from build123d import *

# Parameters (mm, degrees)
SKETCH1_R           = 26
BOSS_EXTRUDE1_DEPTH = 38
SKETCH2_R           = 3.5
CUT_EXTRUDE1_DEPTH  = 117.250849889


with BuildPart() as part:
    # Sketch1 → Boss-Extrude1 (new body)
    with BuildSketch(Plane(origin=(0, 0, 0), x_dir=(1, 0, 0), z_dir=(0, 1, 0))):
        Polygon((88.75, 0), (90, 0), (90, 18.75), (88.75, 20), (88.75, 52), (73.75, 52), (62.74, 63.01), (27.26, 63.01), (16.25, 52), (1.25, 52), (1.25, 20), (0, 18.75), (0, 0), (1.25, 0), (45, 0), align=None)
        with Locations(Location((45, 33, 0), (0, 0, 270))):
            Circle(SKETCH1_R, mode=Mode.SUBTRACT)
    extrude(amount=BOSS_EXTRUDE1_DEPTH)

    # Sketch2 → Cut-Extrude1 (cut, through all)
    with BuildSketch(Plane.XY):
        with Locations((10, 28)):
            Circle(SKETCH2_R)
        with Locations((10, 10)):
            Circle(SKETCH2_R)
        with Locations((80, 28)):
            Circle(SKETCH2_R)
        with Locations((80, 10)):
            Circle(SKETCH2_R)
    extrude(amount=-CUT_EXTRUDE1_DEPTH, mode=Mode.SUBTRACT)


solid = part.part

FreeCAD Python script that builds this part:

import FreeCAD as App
import Part
import Sketcher
Q = App.Units.Quantity


def add_polygon(sketch, points):
    """Adds a closed chain of lines whose ends are joined by coincident constraints."""
    first, n = sketch.GeometryCount, len(points)
    for a, b in zip(points, points[1:] + points[:1]):
        sketch.addGeometry(Part.LineSegment(App.Vector(*a, 0), App.Vector(*b, 0)), False)
    for i in range(n):
        sketch.addConstraint(Sketcher.Constraint("Coincident", first + i, 2, first + (i + 1) % n, 1))

doc = App.newDocument("Part")
body = doc.addObject("PartDesign::Body", "Body")

# Sketch on XZ plane
sketch1 = doc.addObject("Sketcher::SketchObject", "Sketch")
body.addObject(sketch1)
sketch1.AttachmentSupport = (doc.XZ_Plane, [""])
sketch1.MapMode = "FlatFace"
add_polygon(sketch1, [(90, 0), (90, -18.8), (88.8, -20), (88.8, -52), (73.8, -52), (62.7, -63), (27.3, -63), (16.2, -52), (1.2, -52), (1.2, -20), (0, -18.8), (0, 0)])  # lines 0-11
sketch1.addGeometry(Part.Circle(App.Vector(45, -33, 0), App.Vector(0, 0, 1), 26), False)  # 12
sketch1.addConstraint(Sketcher.Constraint("Vertical", 0))
sketch1.addConstraint(Sketcher.Constraint("Vertical", 2))
sketch1.addConstraint(Sketcher.Constraint("Horizontal", 3))
sketch1.addConstraint(Sketcher.Constraint("Horizontal", 5))
sketch1.addConstraint(Sketcher.Constraint("Horizontal", 7))
sketch1.addConstraint(Sketcher.Constraint("Vertical", 8))
sketch1.addConstraint(Sketcher.Constraint("Vertical", 10))
sketch1.addConstraint(Sketcher.Constraint("Horizontal", 11))
sketch1.addConstraint(Sketcher.Constraint("Coincident", 10, 2, -1, 1))
sketch1.addConstraint(Sketcher.Constraint("Parallel", 1, 4))
sketch1.addConstraint(Sketcher.Constraint("Perpendicular", 4, 6))
sketch1.addConstraint(Sketcher.Constraint("Parallel", 6, 9))
sketch1.addConstraint(Sketcher.Constraint("Horizontal", 3, 2, 6, 2))
sketch1.addConstraint(Sketcher.Constraint("Horizontal", 1, 2, 8, 2))
sketch1.addConstraint(Sketcher.Constraint("Horizontal", 0, 2, 9, 2))
sketch1.addConstraint(Sketcher.Constraint("Equal", 3, 7))
sketch1.addConstraint(Sketcher.Constraint("Equal", 4, 6))
sketch1.addConstraint(Sketcher.Constraint("Diameter", 12, Q("52 mm")))
sketch1.addConstraint(Sketcher.Constraint("DistanceX", 3, 2, 3, 1, Q("15 mm")))
sketch1.addConstraint(Sketcher.Constraint("DistanceX", 11, 1, 11, 2, Q("90 mm")))
sketch1.addConstraint(Sketcher.Constraint("DistanceY", 2, 2, 2, 1, Q("32 mm")))
sketch1.addConstraint(Sketcher.Constraint("DistanceX", -1, 1, 12, 3, Q("45 mm")))
sketch1.addConstraint(Sketcher.Constraint("DistanceY", 12, 3, -1, 1, Q("33 mm")))
sketch1.addConstraint(Sketcher.Constraint("DistanceY", 1, 2, -1, 1, Q("20 mm")))
sketch1.addConstraint(Sketcher.Constraint("DistanceX", 5, 2, 5, 1, Q("35.48 mm")))
sketch1.addConstraint(Sketcher.Constraint("DistanceY", 0, 2, 0, 1, Q("18.75 mm")))
pad1 = doc.addObject("PartDesign::Pad", "Pad")
body.addObject(pad1)
pad1.Profile = sketch1
pad1.Length = 38
pad1.Reversed = True

# Sketch on XY plane
sketch2 = doc.addObject("Sketcher::SketchObject", "Sketch001")
body.addObject(sketch2)
sketch2.AttachmentSupport = (doc.XY_Plane, [""])
sketch2.MapMode = "FlatFace"
sketch2.addGeometry(Part.Circle(App.Vector(10, 28, 0), App.Vector(0, 0, 1), 3.5), False)
sketch2.addGeometry(Part.Circle(App.Vector(10, 10, 0), App.Vector(0, 0, 1), 3.5), False)
sketch2.addGeometry(Part.Circle(App.Vector(80, 28, 0), App.Vector(0, 0, 1), 3.5), False)
sketch2.addGeometry(Part.Circle(App.Vector(80, 10, 0), App.Vector(0, 0, 1), 3.5), False)
sketch2.addConstraint(Sketcher.Constraint("Equal", 0, 1))
sketch2.addConstraint(Sketcher.Constraint("Equal", 1, 2))
sketch2.addConstraint(Sketcher.Constraint("Equal", 2, 3))
sketch2.addConstraint(Sketcher.Constraint("Horizontal", 0, 3, 2, 3))
sketch2.addConstraint(Sketcher.Constraint("Horizontal", 1, 3, 3, 3))
sketch2.addConstraint(Sketcher.Constraint("Vertical", 0, 3, 1, 3))
sketch2.addConstraint(Sketcher.Constraint("Vertical", 2, 3, 3, 3))
sketch2.addConstraint(Sketcher.Constraint("Diameter", 0, Q("7 mm")))
sketch2.addConstraint(Sketcher.Constraint("DistanceX", -1, 1, 0, 3, Q("10 mm")))
sketch2.addConstraint(Sketcher.Constraint("DistanceY", -1, 1, 0, 3, Q("28 mm")))
sketch2.addConstraint(Sketcher.Constraint("DistanceY", -1, 1, 1, 3, Q("10 mm")))
sketch2.addConstraint(Sketcher.Constraint("DistanceX", -1, 1, 2, 3, Q("80 mm")))
pocket1 = doc.addObject("PartDesign::Pocket", "Pocket")
body.addObject(pocket1)
pocket1.Profile = sketch2
pocket1.Type = "ThroughAll"

doc.recompute()
